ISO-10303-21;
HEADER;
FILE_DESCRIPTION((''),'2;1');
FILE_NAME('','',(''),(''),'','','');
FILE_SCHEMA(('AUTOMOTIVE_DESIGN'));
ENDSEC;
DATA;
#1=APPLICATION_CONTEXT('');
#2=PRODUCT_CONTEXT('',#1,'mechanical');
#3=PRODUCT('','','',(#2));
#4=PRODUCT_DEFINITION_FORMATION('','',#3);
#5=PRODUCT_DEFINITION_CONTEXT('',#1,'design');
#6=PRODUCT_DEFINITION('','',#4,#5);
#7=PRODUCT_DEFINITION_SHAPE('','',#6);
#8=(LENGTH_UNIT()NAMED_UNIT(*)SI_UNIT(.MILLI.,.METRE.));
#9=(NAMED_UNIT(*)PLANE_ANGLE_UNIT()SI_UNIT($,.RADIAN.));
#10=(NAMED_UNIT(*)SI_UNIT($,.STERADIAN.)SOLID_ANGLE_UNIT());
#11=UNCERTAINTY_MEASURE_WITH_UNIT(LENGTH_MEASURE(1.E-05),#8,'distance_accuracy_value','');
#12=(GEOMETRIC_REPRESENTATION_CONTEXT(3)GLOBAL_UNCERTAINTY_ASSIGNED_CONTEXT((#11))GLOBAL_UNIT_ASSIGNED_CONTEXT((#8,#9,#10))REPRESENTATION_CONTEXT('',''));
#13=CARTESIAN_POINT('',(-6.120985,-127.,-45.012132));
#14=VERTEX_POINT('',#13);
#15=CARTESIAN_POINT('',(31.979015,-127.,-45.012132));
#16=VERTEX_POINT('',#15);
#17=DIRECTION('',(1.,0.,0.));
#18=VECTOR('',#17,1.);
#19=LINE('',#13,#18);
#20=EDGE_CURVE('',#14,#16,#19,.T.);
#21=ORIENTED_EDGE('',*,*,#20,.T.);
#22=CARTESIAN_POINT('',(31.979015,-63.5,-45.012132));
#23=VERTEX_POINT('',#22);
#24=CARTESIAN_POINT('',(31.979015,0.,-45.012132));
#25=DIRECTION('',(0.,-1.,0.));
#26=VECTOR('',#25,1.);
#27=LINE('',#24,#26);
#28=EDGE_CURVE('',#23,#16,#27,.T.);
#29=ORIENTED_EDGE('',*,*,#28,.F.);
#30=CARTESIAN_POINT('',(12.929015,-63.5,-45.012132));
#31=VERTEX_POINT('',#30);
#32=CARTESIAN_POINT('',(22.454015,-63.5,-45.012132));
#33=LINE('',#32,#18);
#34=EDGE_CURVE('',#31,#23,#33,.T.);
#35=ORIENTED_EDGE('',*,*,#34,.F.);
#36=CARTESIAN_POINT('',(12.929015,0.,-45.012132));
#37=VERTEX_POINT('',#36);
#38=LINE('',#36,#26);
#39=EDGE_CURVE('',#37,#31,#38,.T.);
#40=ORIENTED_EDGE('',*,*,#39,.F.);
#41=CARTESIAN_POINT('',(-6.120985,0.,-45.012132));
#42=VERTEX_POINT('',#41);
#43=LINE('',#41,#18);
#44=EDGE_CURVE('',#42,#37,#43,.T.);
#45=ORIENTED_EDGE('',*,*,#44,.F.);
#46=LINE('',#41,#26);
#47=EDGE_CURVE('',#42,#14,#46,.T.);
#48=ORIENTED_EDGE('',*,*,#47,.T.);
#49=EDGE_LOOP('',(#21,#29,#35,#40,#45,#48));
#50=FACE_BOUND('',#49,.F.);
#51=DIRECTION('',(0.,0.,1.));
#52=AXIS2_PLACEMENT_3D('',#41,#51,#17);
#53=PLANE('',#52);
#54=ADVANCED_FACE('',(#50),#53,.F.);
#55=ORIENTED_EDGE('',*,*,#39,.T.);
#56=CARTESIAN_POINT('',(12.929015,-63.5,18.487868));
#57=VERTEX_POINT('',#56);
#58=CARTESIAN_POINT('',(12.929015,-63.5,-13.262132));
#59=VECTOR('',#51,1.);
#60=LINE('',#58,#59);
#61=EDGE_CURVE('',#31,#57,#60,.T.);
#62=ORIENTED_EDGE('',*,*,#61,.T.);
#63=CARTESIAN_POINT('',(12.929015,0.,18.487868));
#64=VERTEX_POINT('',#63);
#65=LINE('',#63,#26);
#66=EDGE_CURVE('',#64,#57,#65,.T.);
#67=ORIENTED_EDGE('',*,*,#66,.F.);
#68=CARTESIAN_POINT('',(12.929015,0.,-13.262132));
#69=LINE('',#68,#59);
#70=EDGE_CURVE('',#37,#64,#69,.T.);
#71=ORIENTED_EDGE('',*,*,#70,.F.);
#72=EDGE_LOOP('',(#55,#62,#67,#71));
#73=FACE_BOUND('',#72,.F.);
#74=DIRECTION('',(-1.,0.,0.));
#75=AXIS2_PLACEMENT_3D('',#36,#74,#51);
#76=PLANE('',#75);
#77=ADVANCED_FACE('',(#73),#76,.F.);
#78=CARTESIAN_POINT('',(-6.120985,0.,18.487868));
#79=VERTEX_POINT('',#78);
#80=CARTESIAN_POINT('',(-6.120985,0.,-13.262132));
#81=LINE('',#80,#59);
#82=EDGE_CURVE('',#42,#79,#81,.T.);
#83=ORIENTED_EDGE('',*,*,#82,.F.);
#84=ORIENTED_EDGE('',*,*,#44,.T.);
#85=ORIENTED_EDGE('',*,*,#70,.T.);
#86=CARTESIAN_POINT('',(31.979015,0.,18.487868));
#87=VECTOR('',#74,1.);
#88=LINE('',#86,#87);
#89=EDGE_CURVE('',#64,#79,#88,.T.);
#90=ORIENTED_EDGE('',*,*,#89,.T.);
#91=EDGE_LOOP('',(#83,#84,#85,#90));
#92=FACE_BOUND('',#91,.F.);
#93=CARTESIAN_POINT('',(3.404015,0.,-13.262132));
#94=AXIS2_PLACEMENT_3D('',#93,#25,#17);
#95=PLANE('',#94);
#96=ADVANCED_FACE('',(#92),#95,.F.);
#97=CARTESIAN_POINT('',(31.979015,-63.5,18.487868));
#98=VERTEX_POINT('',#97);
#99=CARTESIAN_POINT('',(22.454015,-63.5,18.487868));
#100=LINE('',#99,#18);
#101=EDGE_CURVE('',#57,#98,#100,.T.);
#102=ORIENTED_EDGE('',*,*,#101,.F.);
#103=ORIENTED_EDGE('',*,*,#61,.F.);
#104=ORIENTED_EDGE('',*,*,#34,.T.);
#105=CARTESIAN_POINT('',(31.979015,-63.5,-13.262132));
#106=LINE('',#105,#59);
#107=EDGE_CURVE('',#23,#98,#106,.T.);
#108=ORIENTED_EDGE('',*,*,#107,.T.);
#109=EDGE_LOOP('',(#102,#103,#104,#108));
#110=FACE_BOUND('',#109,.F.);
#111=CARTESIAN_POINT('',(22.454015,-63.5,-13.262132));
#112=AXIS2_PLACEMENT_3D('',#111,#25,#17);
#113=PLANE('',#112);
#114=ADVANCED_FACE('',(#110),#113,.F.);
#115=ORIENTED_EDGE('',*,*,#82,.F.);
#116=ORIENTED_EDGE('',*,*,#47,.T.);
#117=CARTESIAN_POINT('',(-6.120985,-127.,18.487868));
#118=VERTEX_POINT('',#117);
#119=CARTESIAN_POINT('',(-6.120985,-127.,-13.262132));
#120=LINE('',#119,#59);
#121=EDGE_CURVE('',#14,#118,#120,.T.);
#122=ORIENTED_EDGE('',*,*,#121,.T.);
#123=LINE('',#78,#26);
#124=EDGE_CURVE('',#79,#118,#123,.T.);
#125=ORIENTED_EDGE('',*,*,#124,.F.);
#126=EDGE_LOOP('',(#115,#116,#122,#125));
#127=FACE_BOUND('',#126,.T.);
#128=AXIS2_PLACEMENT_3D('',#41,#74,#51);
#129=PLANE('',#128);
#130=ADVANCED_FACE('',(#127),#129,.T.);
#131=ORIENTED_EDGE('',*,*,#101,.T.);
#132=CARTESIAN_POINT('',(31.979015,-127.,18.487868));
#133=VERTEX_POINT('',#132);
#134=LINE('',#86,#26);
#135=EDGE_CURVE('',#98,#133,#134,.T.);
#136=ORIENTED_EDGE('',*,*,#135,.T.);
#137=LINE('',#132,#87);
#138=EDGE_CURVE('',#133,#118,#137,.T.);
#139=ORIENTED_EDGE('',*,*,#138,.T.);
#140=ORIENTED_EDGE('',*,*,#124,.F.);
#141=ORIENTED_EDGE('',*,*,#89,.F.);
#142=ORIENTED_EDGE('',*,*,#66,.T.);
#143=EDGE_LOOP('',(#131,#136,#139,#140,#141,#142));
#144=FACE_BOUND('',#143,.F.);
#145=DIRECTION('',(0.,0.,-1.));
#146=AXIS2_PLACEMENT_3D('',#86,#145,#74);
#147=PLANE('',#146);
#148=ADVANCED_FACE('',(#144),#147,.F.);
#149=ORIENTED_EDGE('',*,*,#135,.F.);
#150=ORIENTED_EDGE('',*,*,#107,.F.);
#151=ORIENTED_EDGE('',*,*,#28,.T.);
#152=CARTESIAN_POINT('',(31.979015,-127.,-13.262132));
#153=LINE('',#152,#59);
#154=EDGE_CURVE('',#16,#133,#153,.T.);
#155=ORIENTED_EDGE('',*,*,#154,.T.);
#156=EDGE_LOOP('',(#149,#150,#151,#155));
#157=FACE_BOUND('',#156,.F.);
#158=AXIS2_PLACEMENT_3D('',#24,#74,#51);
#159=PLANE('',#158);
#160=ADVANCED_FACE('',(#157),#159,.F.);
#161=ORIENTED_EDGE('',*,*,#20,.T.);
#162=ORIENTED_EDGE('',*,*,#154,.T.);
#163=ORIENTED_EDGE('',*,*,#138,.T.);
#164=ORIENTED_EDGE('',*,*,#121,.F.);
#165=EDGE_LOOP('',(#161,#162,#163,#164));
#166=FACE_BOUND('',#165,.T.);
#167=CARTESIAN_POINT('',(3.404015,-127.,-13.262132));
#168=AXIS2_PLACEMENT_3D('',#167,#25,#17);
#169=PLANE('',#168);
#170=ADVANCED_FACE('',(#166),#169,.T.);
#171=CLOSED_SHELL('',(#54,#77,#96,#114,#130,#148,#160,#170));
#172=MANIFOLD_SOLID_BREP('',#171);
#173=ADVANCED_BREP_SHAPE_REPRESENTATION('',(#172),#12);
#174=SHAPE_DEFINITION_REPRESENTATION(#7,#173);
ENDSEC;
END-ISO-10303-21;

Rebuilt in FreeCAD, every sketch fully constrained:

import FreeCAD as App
import Part
import Sketcher
Q = App.Units.Quantity


def add_polygon(sketch, points):
    """Adds a closed chain of lines whose ends are joined by coincident constraints."""
    first, n = sketch.GeometryCount, len(points)
    for a, b in zip(points, points[1:] + points[:1]):
        sketch.addGeometry(Part.LineSegment(App.Vector(*a, 0), App.Vector(*b, 0)), False)
    for i in range(n):
        sketch.addConstraint(Sketcher.Constraint("Coincident", first + i, 2, first + (i + 1) % n, 1))

doc = App.newDocument("Part")
body = doc.addObject("PartDesign::Body", "Body")

# Sketch on XZ plane
sketch1 = body.newObject("Sketcher::SketchObject", "Sketch")
sketch1.AttachmentSupport = (doc.getObject("XZ_Plane"), [""])
sketch1.MapMode = "FlatFace"
add_polygon(sketch1, [(-6, 18), (-6, -45), (32, -45), (32, 18)])  # lines 0-3
sketch1.addConstraint([
    Sketcher.Constraint("Vertical", 0),
    Sketcher.Constraint("Horizontal", 1),
    Sketcher.Constraint("Vertical", 2),
    Sketcher.Constraint("Horizontal", 3),
    Sketcher.Constraint("DistanceX", 1, 1, 1, 2, Q("1.5 in")),
    Sketcher.Constraint("DistanceY", 0, 2, 0, 1, Q("2.5 in")),
    Sketcher.Constraint("DistanceX", 0, 2, -1, 1, Q("6.120985 mm")),
    Sketcher.Constraint("DistanceY", 0, 2, -1, 1, Q("45.012132 mm")),
])
pad1 = body.newObject("PartDesign::Pad", "Pad")
pad1.Profile = sketch1
pad1.Length = Q("5 in")

# Sketch on XZ plane
sketch2 = body.newObject("Sketcher::SketchObject", "Sketch001")
sketch2.AttachmentSupport = (doc.getObject("XZ_Plane"), [""])
sketch2.MapMode = "FlatFace"
add_polygon(sketch2, [(13, 18), (13, -45), (32, -45), (32, 18)])  # lines 0-3
sketch2.addConstraint([
    Sketcher.Constraint("Vertical", 0),
    Sketcher.Constraint("Horizontal", 1),
    Sketcher.Constraint("Vertical", 2),
    Sketcher.Constraint("Horizontal", 3),
    Sketcher.Constraint("DistanceY", 0, 2, 0, 1, Q("2.5 in")),
    Sketcher.Constraint("DistanceX", 1, 1, 1, 2, Q("0.75 in")),
    Sketcher.Constraint("DistanceX", -1, 1, 0, 2, Q("12.929015 mm")),
    Sketcher.Constraint("DistanceY", 0, 2, -1, 1, Q("45.012132 mm")),
])
pocket1 = body.newObject("PartDesign::Pocket", "Pocket")
pocket1.Profile = sketch2
pocket1.Length = Q("2.5 in")
pocket1.Reversed = True

doc.recompute()
